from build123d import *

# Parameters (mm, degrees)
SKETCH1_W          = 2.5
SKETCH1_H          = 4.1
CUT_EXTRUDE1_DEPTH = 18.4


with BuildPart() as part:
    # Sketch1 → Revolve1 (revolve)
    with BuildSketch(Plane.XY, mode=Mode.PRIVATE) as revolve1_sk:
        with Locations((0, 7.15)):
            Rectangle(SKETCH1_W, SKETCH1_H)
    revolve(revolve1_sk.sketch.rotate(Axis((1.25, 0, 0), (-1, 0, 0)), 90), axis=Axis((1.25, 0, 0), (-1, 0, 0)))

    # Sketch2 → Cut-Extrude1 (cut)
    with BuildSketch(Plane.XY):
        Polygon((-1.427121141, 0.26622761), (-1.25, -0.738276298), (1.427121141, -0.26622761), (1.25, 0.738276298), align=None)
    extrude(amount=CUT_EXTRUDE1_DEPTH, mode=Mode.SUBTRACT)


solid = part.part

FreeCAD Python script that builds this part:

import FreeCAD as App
import Part
import Sketcher
Q = App.Units.Quantity

doc = App.newDocument("Part")
body = doc.addObject("PartDesign::Body", "Body")

sketch1 = body.newObject("Sketcher::SketchObject", "Sketch")
sketch1.AttachmentSupport = (doc.getObject("XY_Plane"), [""])
sketch1.MapMode = "FlatFace"
sketch1.addGeometry([
    Part.LineSegment(App.Vector(-1.25, 9.2, 0), App.Vector(-1.25, 5.1, 0)),
    Part.LineSegment(App.Vector(-1.25, 5.1, 0), App.Vector(1.25, 5.1, 0)),
    Part.LineSegment(App.Vector(1.25, 5.1, 0), App.Vector(1.25, 9.2, 0)),
    Part.LineSegment(App.Vector(1.25, 9.2, 0), App.Vector(-1.25, 9.2, 0)),
], False)
sketch1.addConstraint([
    Sketcher.Constraint("Coincident", 0, 2, 1, 1),
    Sketcher.Constraint("Coincident", 1, 2, 2, 1),
    Sketcher.Constraint("Coincident", 2, 2, 3, 1),
    Sketcher.Constraint("Coincident", 3, 2, 0, 1),
    Sketcher.Constraint("Vertical", 0),
    Sketcher.Constraint("Horizontal", 1),
    Sketcher.Constraint("Vertical", 2),
    Sketcher.Constraint("Horizontal", 3),
    Sketcher.Constraint("DistanceX", 1, 1, 1, 2, Q("2.5 mm")),
    Sketcher.Constraint("DistanceY", 0, 2, 0, 1, Q("4.1 mm")),
    Sketcher.Constraint("DistanceY", -1, 1, 0, 2, Q("5.1 mm")),
    Sketcher.Constraint("DistanceX", 0, 2, -1, 1, Q("1.25 mm")),
])
revolution = body.newObject("PartDesign::Revolution", "Revolution")
revolution.Profile = sketch1
revolution.ReferenceAxis = (sketch1, ["H_Axis"])
revolution.Angle = 360

sketch2 = body.newObject("Sketcher::SketchObject", "Sketch001")
sketch2.AttachmentSupport = (doc.getObject("XY_Plane"), [""])
sketch2.MapMode = "FlatFace"
sketch2.addGeometry([
    Part.LineSegment(App.Vector(-1.427121, 0.266228, 0), App.Vector(-1.25, -0.738276, 0)),
    Part.LineSegment(App.Vector(-1.25, -0.738276, 0), App.Vector(1.427121, -0.266228, 0)),
    Part.LineSegment(App.Vector(1.427121, -0.266228, 0), App.Vector(1.25, 0.738276, 0)),
    Part.LineSegment(App.Vector(1.25, 0.738276, 0), App.Vector(-1.427121, 0.266228, 0)),
], False)
sketch2.addConstraint([
    Sketcher.Constraint("Coincident", 0, 2, 1, 1),
    Sketcher.Constraint("Coincident", 1, 2, 2, 1),
    Sketcher.Constraint("Coincident", 2, 2, 3, 1),
    Sketcher.Constraint("Coincident", 3, 2, 0, 1),
    Sketcher.Constraint("Symmetric", 0, 2, 2, 2, -1, 1),
    Sketcher.Constraint("Symmetric", 1, 2, 3, 2, -1, 1),
    Sketcher.Constraint("Perpendicular", 0, 1),
    Sketcher.Constraint("Angle", 0, Q("-80 deg")),
    Sketcher.Constraint("DistanceX", 0, 2, 2, 2, Q("2.5 mm")),
    Sketcher.Constraint("Distance", 0, Q("1.02 mm")),
])
pocket1 = body.newObject("PartDesign::Pocket", "Pocket")
pocket1.Profile = sketch2
pocket1.Length = 18.4
pocket1.Reversed = True

doc.recompute()
